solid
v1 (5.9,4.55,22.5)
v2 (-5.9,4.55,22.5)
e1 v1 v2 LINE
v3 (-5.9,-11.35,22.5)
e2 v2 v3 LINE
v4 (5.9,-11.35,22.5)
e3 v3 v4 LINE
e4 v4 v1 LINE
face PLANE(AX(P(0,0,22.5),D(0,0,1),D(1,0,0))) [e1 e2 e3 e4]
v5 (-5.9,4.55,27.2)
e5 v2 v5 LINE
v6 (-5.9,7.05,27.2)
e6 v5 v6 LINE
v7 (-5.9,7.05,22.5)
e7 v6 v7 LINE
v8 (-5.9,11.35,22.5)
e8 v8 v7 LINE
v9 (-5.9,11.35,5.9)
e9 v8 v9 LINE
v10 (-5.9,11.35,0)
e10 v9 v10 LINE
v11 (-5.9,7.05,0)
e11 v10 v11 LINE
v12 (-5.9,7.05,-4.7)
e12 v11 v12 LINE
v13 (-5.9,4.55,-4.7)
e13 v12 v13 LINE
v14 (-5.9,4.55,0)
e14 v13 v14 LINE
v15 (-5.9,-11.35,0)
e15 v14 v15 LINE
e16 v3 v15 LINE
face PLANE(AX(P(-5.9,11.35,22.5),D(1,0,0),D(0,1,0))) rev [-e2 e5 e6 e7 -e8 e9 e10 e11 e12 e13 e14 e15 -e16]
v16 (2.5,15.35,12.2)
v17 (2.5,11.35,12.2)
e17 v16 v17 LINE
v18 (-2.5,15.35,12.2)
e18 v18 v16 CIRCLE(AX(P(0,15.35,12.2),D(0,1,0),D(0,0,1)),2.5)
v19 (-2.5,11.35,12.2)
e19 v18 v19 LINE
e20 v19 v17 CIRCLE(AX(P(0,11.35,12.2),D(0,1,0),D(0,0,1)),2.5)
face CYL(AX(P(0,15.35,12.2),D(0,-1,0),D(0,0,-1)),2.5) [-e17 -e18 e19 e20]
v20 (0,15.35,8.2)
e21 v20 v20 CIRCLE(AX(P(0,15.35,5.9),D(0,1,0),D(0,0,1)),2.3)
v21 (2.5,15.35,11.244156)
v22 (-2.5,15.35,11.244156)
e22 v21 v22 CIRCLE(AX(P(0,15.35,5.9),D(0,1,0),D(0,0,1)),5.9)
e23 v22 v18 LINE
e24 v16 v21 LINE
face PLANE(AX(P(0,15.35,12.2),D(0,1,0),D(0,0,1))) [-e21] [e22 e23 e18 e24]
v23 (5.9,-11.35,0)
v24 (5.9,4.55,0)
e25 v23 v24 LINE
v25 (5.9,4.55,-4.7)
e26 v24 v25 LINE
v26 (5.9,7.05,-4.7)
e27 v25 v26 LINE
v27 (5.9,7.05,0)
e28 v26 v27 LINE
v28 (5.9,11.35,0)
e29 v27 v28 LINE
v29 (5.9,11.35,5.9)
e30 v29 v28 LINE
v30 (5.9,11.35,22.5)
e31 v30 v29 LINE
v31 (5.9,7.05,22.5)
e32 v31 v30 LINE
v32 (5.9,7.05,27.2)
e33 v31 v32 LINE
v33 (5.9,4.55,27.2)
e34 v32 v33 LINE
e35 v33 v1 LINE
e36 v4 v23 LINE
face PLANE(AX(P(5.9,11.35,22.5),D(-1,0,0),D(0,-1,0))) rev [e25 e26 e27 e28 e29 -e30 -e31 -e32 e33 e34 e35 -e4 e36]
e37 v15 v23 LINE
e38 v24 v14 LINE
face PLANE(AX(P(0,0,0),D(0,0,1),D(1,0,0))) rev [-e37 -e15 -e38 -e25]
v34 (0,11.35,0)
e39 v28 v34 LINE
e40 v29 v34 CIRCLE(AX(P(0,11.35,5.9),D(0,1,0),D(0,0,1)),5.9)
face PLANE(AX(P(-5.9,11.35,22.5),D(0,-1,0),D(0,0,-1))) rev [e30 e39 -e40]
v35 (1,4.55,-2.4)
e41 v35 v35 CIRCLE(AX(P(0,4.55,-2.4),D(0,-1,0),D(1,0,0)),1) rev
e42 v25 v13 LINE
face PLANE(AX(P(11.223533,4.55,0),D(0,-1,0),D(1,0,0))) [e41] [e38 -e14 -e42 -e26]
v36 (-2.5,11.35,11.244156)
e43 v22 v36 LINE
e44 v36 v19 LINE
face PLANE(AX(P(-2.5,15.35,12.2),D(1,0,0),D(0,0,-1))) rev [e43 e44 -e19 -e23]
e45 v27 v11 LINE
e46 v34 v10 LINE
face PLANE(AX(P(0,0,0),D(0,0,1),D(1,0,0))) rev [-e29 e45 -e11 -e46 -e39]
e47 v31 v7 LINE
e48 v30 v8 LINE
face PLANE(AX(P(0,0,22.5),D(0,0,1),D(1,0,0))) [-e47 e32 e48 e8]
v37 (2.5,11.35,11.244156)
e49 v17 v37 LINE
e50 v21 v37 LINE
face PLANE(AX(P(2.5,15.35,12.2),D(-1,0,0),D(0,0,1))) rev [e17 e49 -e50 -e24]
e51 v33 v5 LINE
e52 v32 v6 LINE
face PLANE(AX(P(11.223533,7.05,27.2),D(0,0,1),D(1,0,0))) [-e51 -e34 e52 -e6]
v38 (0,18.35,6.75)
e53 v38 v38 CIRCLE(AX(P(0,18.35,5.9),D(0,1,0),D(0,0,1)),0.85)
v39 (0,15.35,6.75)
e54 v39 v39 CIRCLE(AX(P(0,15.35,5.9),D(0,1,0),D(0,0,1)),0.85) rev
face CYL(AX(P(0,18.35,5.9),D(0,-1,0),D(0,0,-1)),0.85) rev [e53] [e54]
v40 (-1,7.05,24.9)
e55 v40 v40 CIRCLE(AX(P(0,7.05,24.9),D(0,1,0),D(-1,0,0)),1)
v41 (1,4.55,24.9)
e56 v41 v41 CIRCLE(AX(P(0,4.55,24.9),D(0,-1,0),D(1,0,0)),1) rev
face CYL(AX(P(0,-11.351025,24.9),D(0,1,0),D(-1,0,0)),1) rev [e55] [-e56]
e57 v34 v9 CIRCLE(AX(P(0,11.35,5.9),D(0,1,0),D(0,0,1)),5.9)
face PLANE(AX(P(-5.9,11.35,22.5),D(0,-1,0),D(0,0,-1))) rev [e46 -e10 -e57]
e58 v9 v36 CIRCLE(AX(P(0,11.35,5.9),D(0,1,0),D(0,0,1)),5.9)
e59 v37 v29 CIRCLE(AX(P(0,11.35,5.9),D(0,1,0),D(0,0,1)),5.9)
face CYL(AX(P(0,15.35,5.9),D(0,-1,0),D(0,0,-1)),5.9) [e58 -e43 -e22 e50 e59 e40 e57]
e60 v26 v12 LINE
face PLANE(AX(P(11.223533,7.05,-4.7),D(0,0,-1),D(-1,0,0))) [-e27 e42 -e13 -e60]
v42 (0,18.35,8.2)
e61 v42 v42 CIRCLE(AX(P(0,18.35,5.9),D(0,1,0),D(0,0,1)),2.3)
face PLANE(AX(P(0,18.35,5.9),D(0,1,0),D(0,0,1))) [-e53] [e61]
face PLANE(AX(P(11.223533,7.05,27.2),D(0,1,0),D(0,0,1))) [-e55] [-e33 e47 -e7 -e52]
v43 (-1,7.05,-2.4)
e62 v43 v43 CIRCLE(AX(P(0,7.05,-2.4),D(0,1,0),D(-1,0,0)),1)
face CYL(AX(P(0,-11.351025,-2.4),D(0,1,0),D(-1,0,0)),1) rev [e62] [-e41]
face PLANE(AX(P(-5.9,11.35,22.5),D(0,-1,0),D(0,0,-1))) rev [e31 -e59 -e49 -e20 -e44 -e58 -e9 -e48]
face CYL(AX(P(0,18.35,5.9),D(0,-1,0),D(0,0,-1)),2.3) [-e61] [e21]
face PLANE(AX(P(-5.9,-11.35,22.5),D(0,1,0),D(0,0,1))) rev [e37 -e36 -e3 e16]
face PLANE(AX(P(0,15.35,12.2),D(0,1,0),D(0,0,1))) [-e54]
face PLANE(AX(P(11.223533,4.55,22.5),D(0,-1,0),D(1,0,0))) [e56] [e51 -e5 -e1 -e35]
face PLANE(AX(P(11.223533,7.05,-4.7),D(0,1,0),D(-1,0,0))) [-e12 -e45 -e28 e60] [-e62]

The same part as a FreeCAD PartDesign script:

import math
import FreeCAD as App
import Part
import Sketcher

V = App.Vector
Q = App.Units.Quantity


def add_polygon(sketch, points):
    """Adds a closed chain of lines whose ends are joined by coincident constraints."""
    first, n = sketch.GeometryCount, len(points)
    for a, b in zip(points, points[1:] + points[:1]):
        sketch.addGeometry(Part.LineSegment(App.Vector(*a, 0), App.Vector(*b, 0)), False)
    for i in range(n):
        sketch.addConstraint(Sketcher.Constraint("Coincident", first + i, 2, first + (i + 1) % n, 1))

doc = App.newDocument("Part")
params = doc.addObject("Spreadsheet::Sheet", "Params")
for row, (alias, value) in enumerate([
    ("sketch1_width", "11.8 mm"),
    ("sketch1_height", "22.7 mm"),
    ("pad1_length", "22.5 mm"),
    ("sketch2_radius", "5.9 mm"),
    ("sketch2_radius2", "2.5 mm"),
    ("pad2_length", "4 mm"),
    ("sketch3_diameter", "4.6 mm"),
    ("sketch3_diameter2", "1.7 mm"),
    ("pad3_length", "3 mm"),
    ("sketch4_width", "2.5 mm"),
    ("sketch4_height", "4.7 mm"),
    ("pad4_length", "11.8 mm"),
    ("sketch5_diameter", "2 mm"),
    ("sketch6_diameter", "2 mm"),
], start=1):
    params.set(f"A{row}", alias)
    params.set(f"B{row}", "=" + value)
    params.setAlias(f"B{row}", alias)

body = doc.addObject("PartDesign::Body", "Body")

# Sketch on XY plane
sketch1 = body.newObject("Sketcher::SketchObject", "Sketch")
sketch1.AttachmentSupport = (doc.getObject("XY_Plane"), [""])
sketch1.MapMode = "FlatFace"
add_polygon(sketch1, [(-5.9, 11.35), (-5.9, -11.35), (5.9, -11.35), (5.9, 11.35)])  # lines 0-3
sketch1.addConstraint([
    Sketcher.Constraint("Vertical", 0),
    Sketcher.Constraint("Horizontal", 1),
    Sketcher.Constraint("Vertical", 2),
    Sketcher.Constraint("Horizontal", 3),
    Sketcher.Constraint("Symmetric", 0, 2, 2, 2, -1, 1),
    Sketcher.Constraint("DistanceX", 1, 1, 1, 2, Q("11.8 mm")),
    Sketcher.Constraint("DistanceY", 0, 2, 0, 1, Q("22.7 mm")),
])
sketch1.setExpression("Constraints[9]", "Params.sketch1_width")
sketch1.setExpression("Constraints[10]", "Params.sketch1_height")
pad1 = body.newObject("PartDesign::Pad", "Pad")
pad1.Profile = sketch1
pad1.setExpression("Length", "Params.pad1_length")

# Sketch on XZ plane
sketch2 = body.newObject("Sketcher::SketchObject", "Sketch001")
sketch2.AttachmentSupport = (doc.getObject("XZ_Plane"), [""])
sketch2.MapMode = "FlatFace"
sketch2.AttachmentOffset = App.Placement(V(0, 0, -11.35), App.Rotation())
sketch2.addGeometry([
    Part.LineSegment(V(2.5, 12.2, 0), V(2.5, 11.244156, 0)),
    Part.ArcOfCircle(Part.Circle(V(0, 5.9, 0), V(0, 0, 1), 5.9), math.radians(115.070228), math.radians(424.929772)),
    Part.LineSegment(V(-2.5, 11.244156, 0), V(-2.5, 12.2, 0)),
    Part.ArcOfCircle(Part.Circle(V(0, 12.2, 0), V(0, 0, 1), 2.5), math.radians(0), math.radians(180)),
], False)
sketch2.addConstraint([
    Sketcher.Constraint("Coincident", 0, 2, 1, 2),
    Sketcher.Constraint("Coincident", 1, 1, 2, 1),
    Sketcher.Constraint("Tangent", 2, 2, 3, 2),
    Sketcher.Constraint("Tangent", 3, 1, 0, 1),
    Sketcher.Constraint("Vertical", 0),
    Sketcher.Constraint("Vertical", 2),
    Sketcher.Constraint("Symmetric", 0, 2, 1, 1, -2),
    Sketcher.Constraint("Radius", 1, Q("5.9 mm")),
    Sketcher.Constraint("Radius", 3, Q("2.5 mm")),
    Sketcher.Constraint("DistanceY", -1, 1, 1, 3, Q("5.9 mm")),
    Sketcher.Constraint("DistanceY", -1, 1, 3, 3, Q("12.2 mm")),
])
sketch2.setExpression("Constraints[7]", "Params.sketch2_radius")
sketch2.setExpression("Constraints[8]", "Params.sketch2_radius2")
pad2 = body.newObject("PartDesign::Pad", "Pad001")
pad2.Profile = sketch2
pad2.setExpression("Length", "Params.pad2_length")
pad2.Reversed = True

# Sketch on XZ plane
sketch3 = body.newObject("Sketcher::SketchObject", "Sketch002")
sketch3.AttachmentSupport = (doc.getObject("XZ_Plane"), [""])
sketch3.MapMode = "FlatFace"
sketch3.AttachmentOffset = App.Placement(V(0, 0, -15.35), App.Rotation())
sketch3.addGeometry([
    Part.Circle(V(0, 5.9, 0), V(0, 0, 1), 2.3),
    Part.Circle(V(0, 5.9, 0), V(0, 0, 1), 0.85),
], False)
sketch3.addConstraint([
    Sketcher.Constraint("Coincident", 1, 3, 0, 3),
    Sketcher.Constraint("PointOnObject", 0, 3, -2),
    Sketcher.Constraint("Diameter", 0, Q("4.6 mm")),
    Sketcher.Constraint("Diameter", 1, Q("1.7 mm")),
    Sketcher.Constraint("DistanceY", -1, 1, 0, 3, Q("5.9 mm")),
])
sketch3.setExpression("Constraints[2]", "Params.sketch3_diameter")
sketch3.setExpression("Constraints[3]", "Params.sketch3_diameter2")
pad3 = body.newObject("PartDesign::Pad", "Pad002")
pad3.Profile = sketch3
pad3.setExpression("Length", "Params.pad3_length")
pad3.Reversed = True

# Sketch on YZ plane
sketch4 = body.newObject("Sketcher::SketchObject", "Sketch003")
sketch4.AttachmentSupport = (doc.getObject("YZ_Plane"), [""])
sketch4.MapMode = "FlatFace"
sketch4.AttachmentOffset = App.Placement(V(0, 0, -5.9), App.Rotation())
add_polygon(sketch4, [(7.05, -4.7), (4.55, -4.7), (4.55, 0), (7.05, 0)])  # lines 0-3
add_polygon(sketch4, [(7.05, 22.5), (4.55, 22.5), (4.55, 27.2), (7.05, 27.2)])  # lines 4-7
sketch4.addConstraint([
    Sketcher.Constraint("Horizontal", 0),
    Sketcher.Constraint("Vertical", 1),
    Sketcher.Constraint("Horizontal", 2),
    Sketcher.Constraint("Vertical", 3),
    Sketcher.Constraint("Horizontal", 4),
    Sketcher.Constraint("Vertical", 5),
    Sketcher.Constraint("Horizontal", 6),
    Sketcher.Constraint("Vertical", 7),
    Sketcher.Constraint("PointOnObject", 1, 2, -1),
    Sketcher.Constraint("Vertical", 1, 2, 4, 2),
    Sketcher.Constraint("Vertical", 3, 2, 6, 2),
    Sketcher.Constraint("Equal", 3, 5),
    Sketcher.Constraint("DistanceX", 0, 2, 0, 1, Q("2.5 mm")),
    Sketcher.Constraint("DistanceY", 1, 1, 1, 2, Q("4.7 mm")),
    Sketcher.Constraint("DistanceY", -1, 1, 4, 2, Q("22.5 mm")),
    Sketcher.Constraint("DistanceX", -1, 1, 0, 2, Q("4.55 mm")),
])
sketch4.setExpression("Constraints[20]", "Params.sketch4_width")
sketch4.setExpression("Constraints[21]", "Params.sketch4_height")
pad4 = body.newObject("PartDesign::Pad", "Pad003")
pad4.Profile = sketch4
pad4.setExpression("Length", "Params.pad4_length")

# Sketch on XZ plane
sketch5 = body.newObject("Sketcher::SketchObject", "Sketch004")
sketch5.AttachmentSupport = (doc.getObject("XZ_Plane"), [""])
sketch5.MapMode = "FlatFace"
sketch5.AttachmentOffset = App.Placement(V(0, 0, -7.05), App.Rotation())
sketch5.addGeometry(Part.Circle(V(0, -2.4, 0), V(0, 0, 1), 1), False)
sketch5.addConstraint([
    Sketcher.Constraint("PointOnObject", 0, 3, -2),
    Sketcher.Constraint("Diameter", 0, Q("2 mm")),
    Sketcher.Constraint("DistanceY", 0, 3, -1, 1, Q("2.4 mm")),
])
sketch5.setExpression("Constraints[1]", "Params.sketch5_diameter")
pocket1 = body.newObject("PartDesign::Pocket", "Pocket")
pocket1.Profile = sketch5
pocket1.Type = "UpToFirst"
pocket1.Reversed = True

# Sketch on XZ plane
sketch6 = body.newObject("Sketcher::SketchObject", "Sketch005")
sketch6.AttachmentSupport = (doc.getObject("XZ_Plane"), [""])
sketch6.MapMode = "FlatFace"
sketch6.AttachmentOffset = App.Placement(V(0, 0, -7.05), App.Rotation())
sketch6.addGeometry(Part.Circle(V(0, 24.9, 0), V(0, 0, 1), 1), False)
sketch6.addConstraint([
    Sketcher.Constraint("PointOnObject", 0, 3, -2),
    Sketcher.Constraint("Diameter", 0, Q("2 mm")),
    Sketcher.Constraint("DistanceY", -1, 1, 0, 3, Q("24.9 mm")),
])
sketch6.setExpression("Constraints[1]", "Params.sketch6_diameter")
pocket2 = body.newObject("PartDesign::Pocket", "Pocket001")
pocket2.Profile = sketch6
pocket2.Type = "UpToFirst"
pocket2.Reversed = True

doc.recompute()
